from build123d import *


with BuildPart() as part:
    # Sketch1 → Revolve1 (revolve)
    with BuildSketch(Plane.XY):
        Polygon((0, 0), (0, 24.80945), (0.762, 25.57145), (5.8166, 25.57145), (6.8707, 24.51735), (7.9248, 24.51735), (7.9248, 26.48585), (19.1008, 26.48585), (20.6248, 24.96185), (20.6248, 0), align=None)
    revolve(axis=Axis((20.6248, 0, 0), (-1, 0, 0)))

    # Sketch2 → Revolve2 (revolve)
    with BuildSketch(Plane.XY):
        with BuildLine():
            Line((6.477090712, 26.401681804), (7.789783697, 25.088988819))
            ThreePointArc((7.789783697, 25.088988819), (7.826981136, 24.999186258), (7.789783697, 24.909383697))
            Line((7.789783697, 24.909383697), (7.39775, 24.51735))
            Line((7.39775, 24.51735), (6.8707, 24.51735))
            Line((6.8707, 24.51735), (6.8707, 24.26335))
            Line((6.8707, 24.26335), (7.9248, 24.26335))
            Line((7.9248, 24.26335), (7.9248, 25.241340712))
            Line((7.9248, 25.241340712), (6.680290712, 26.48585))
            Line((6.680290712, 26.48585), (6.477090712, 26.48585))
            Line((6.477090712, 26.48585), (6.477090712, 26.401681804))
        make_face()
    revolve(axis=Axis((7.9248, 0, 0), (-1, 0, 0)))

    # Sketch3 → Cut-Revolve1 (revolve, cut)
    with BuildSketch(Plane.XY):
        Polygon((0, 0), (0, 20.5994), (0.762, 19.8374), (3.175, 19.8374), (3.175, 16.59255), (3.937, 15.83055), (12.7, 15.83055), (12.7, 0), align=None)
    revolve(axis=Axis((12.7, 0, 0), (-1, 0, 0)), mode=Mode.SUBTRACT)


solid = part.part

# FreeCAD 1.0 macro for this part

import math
import FreeCAD as App
import Part
import Sketcher

V = App.Vector
Q = App.Units.Quantity

doc = App.newDocument("Part")
body = doc.addObject("PartDesign::Body", "Body")

# Sketch on XY plane
sketch1 = body.newObject("Sketcher::SketchObject", "Sketch")
sketch1.AttachmentSupport = (doc.getObject("XY_Plane"), [""])
sketch1.MapMode = "FlatFace"
sketch1.addGeometry([
    Part.LineSegment(V(0, 24.80945, 0), V(0, 0, 0)),  # 0
    Part.LineSegment(V(0, 0, 0), V(20.6248, 0, 0)),  # 1
    Part.LineSegment(V(20.6248, 0, 0), V(20.6248, 24.96185, 0)),  # 2
    Part.LineSegment(V(20.6248, 24.96185, 0), V(19.1008, 26.48585, 0)),  # 3
    Part.LineSegment(V(19.1008, 26.48585, 0), V(7.9248, 26.48585, 0)),  # 4
    Part.LineSegment(V(7.9248, 26.48585, 0), V(7.9248, 24.51735, 0)),  # 5
    Part.LineSegment(V(7.9248, 24.51735, 0), V(6.8707, 24.51735, 0)),  # 6
    Part.LineSegment(V(6.8707, 24.51735, 0), V(5.8166, 25.57145, 0)),  # 7
    Part.LineSegment(V(5.8166, 25.57145, 0), V(0.762, 25.57145, 0)),  # 8
    Part.LineSegment(V(0.762, 25.57145, 0), V(0, 24.80945, 0)),  # 9
], False)
sketch1.addConstraint([
    Sketcher.Constraint("Coincident", 0, 2, 1, 1),
    Sketcher.Constraint("Coincident", 1, 2, 2, 1),
    Sketcher.Constraint("Coincident", 2, 2, 3, 1),
    Sketcher.Constraint("Coincident", 3, 2, 4, 1),
    Sketcher.Constraint("Coincident", 4, 2, 5, 1),
    Sketcher.Constraint("Coincident", 5, 2, 6, 1),
    Sketcher.Constraint("Coincident", 6, 2, 7, 1),
    Sketcher.Constraint("Coincident", 7, 2, 8, 1),
    Sketcher.Constraint("Coincident", 8, 2, 9, 1),
    Sketcher.Constraint("Coincident", 9, 2, 0, 1),
    Sketcher.Constraint("Vertical", 0),
    Sketcher.Constraint("Horizontal", 1),
    Sketcher.Constraint("Vertical", 2),
    Sketcher.Constraint("Horizontal", 4),
    Sketcher.Constraint("Vertical", 5),
    Sketcher.Constraint("Horizontal", 6),
    Sketcher.Constraint("Horizontal", 8),
    Sketcher.Constraint("Coincident", 0, 2, -1, 1),
    Sketcher.Constraint("Parallel", 3, 7),
    Sketcher.Constraint("Perpendicular", 7, 9),
    Sketcher.Constraint("Angle", 3, Q("135 deg")),
    Sketcher.Constraint("DistanceX", 4, 2, 4, 1, Q("0.44 in")),
    Sketcher.Constraint("DistanceX", 4, 2, 2, 2, Q("0.5 in")),
    Sketcher.Constraint("DistanceX", 1, 1, 1, 2, Q("0.812 in")),
    Sketcher.Constraint("DistanceX", 8, 2, 8, 1, Q("0.199 in")),
    Sketcher.Constraint("DistanceX", -1, 1, 8, 2, Q("0.03 in")),
    Sketcher.Constraint("DistanceX", 6, 2, 6, 1, Q("0.0415 in")),
    Sketcher.Constraint("DistanceY", 5, 2, 5, 1, Q("0.0775 in")),
    Sketcher.Constraint("DistanceY", 0, 2, 0, 1, 24.80945),
])
revolution = body.newObject("PartDesign::Revolution", "Revolution")
revolution.Profile = sketch1
revolution.ReferenceAxis = (sketch1, ["H_Axis"])
revolution.Angle = 360

# Sketch on XY plane
sketch2 = body.newObject("Sketcher::SketchObject", "Sketch001")
sketch2.AttachmentSupport = (doc.getObject("XY_Plane"), [""])
sketch2.MapMode = "FlatFace"
sketch2.addGeometry([
    Part.LineSegment(V(6.477091, 26.401682, 0), V(7.789784, 25.088989, 0)),  # 0
    Part.ArcOfCircle(Part.Circle(V(7.699981, 24.999186, 0), V(0, 0, 1), 0.127), math.radians(-45), math.radians(45)),  # 1
    Part.LineSegment(V(7.789784, 24.909384, 0), V(7.39775, 24.51735, 0)),  # 2
    Part.LineSegment(V(7.39775, 24.51735, 0), V(6.8707, 24.51735, 0)),  # 3
    Part.LineSegment(V(6.8707, 24.51735, 0), V(6.8707, 24.26335, 0)),  # 4
    Part.LineSegment(V(6.8707, 24.26335, 0), V(7.9248, 24.26335, 0)),  # 5
    Part.LineSegment(V(7.9248, 24.26335, 0), V(7.9248, 25.241341, 0)),  # 6
    Part.LineSegment(V(7.9248, 25.241341, 0), V(6.680291, 26.48585, 0)),  # 7
    Part.LineSegment(V(6.680291, 26.48585, 0), V(6.477091, 26.48585, 0)),  # 8
    Part.LineSegment(V(6.477091, 26.48585, 0), V(6.477091, 26.401682, 0)),  # 9
], False)
sketch2.addConstraint([
    Sketcher.Constraint("Tangent", 0, 2, 1, 2),
    Sketcher.Constraint("Tangent", 1, 1, 2, 1),
    Sketcher.Constraint("Coincident", 2, 2, 3, 1),
    Sketcher.Constraint("Coincident", 3, 2, 4, 1),
    Sketcher.Constraint("Coincident", 4, 2, 5, 1),
    Sketcher.Constraint("Coincident", 5, 2, 6, 1),
    Sketcher.Constraint("Coincident", 6, 2, 7, 1),
    Sketcher.Constraint("Coincident", 7, 2, 8, 1),
    Sketcher.Constraint("Coincident", 8, 2, 9, 1),
    Sketcher.Constraint("Coincident", 9, 2, 0, 1),
    Sketcher.Constraint("Horizontal", 3),
    Sketcher.Constraint("Vertical", 4),
    Sketcher.Constraint("Horizontal", 5),
    Sketcher.Constraint("Vertical", 6),
    Sketcher.Constraint("Horizontal", 8),
    Sketcher.Constraint("Vertical", 9),
    Sketcher.Constraint("Perpendicular", 0, 2),
    Sketcher.Constraint("Perpendicular", 2, 7),
    Sketcher.Constraint("Vertical", 0, 2, 1, 1),
    Sketcher.Constraint("Radius", 1, Q("0.005 in")),
    Sketcher.Constraint("DistanceY", 4, 2, 4, 1, Q("0.01 in")),
    Sketcher.Constraint("DistanceX", 8, 2, 8, 1, Q("0.008 in")),
    Sketcher.Constraint("DistanceX", 5, 1, 5, 2, Q("0.0415 in")),
    Sketcher.Constraint("DistanceX", -1, 1, 5, 2, Q("0.312 in")),
    Sketcher.Constraint("DistanceY", 3, 2, 7, 2, Q("0.0775 in")),
    Sketcher.Constraint("Distance", 7, 1.760002),
    Sketcher.Constraint("DistanceX", 3, 2, 3, 1, 0.52705),
    Sketcher.Constraint("DistanceY", 9, 2, 9, 1, 0.084168),
    Sketcher.Constraint("DistanceY", -1, 1, 0, 2, 25.088989),
])
revolution2 = body.newObject("PartDesign::Revolution", "Revolution001")
revolution2.Profile = sketch2
revolution2.ReferenceAxis = (sketch2, ["H_Axis"])
revolution2.Angle = 360

# Sketch on XY plane
sketch3 = body.newObject("Sketcher::SketchObject", "Sketch002")
sketch3.AttachmentSupport = (doc.getObject("XY_Plane"), [""])
sketch3.MapMode = "FlatFace"
sketch3.addGeometry([
    Part.LineSegment(V(0, 20.5994, 0), V(0, 0, 0)),  # 0
    Part.LineSegment(V(0, 0, 0), V(12.7, 0, 0)),  # 1
    Part.LineSegment(V(12.7, 0, 0), V(12.7, 15.83055, 0)),  # 2
    Part.LineSegment(V(12.7, 15.83055, 0), V(3.937, 15.83055, 0)),  # 3
    Part.LineSegment(V(3.937, 15.83055, 0), V(3.175, 16.59255, 0)),  # 4
    Part.LineSegment(V(3.175, 16.59255, 0), V(3.175, 19.8374, 0)),  # 5
    Part.LineSegment(V(3.175, 19.8374, 0), V(0.762, 19.8374, 0)),  # 6
    Part.LineSegment(V(0.762, 19.8374, 0), V(0, 20.5994, 0)),  # 7
], False)
sketch3.addConstraint([
    Sketcher.Constraint("Coincident", 0, 2, 1, 1),
    Sketcher.Constraint("Coincident", 1, 2, 2, 1),
    Sketcher.Constraint("Coincident", 2, 2, 3, 1),
    Sketcher.Constraint("Coincident", 3, 2, 4, 1),
    Sketcher.Constraint("Coincident", 4, 2, 5, 1),
    Sketcher.Constraint("Coincident", 5, 2, 6, 1),
    Sketcher.Constraint("Coincident", 6, 2, 7, 1),
    Sketcher.Constraint("Coincident", 7, 2, 0, 1),
    Sketcher.Constraint("Vertical", 0),
    Sketcher.Constraint("Horizontal", 1),
    Sketcher.Constraint("Vertical", 2),
    Sketcher.Constraint("Horizontal", 3),
    Sketcher.Constraint("Vertical", 5),
    Sketcher.Constraint("Horizontal", 6),
    Sketcher.Constraint("Coincident", 0, 2, -1, 1),
    Sketcher.Constraint("Parallel", 4, 7),
    Sketcher.Constraint("Equal", 4, 7),
    Sketcher.Constraint("DistanceX", 1, 1, 1, 2, Q("0.5 in")),
    Sketcher.Constraint("Angle", 4, Q("135 deg")),
    Sketcher.Constraint("DistanceX", 3, 2, 3, 1, Q("0.345 in")),
    Sketcher.Constraint("DistanceX", 6, 2, 6, 1, Q("0.095 in")),
    Sketcher.Constraint("DistanceY", 0, 2, 0, 1, Q("0.811 in")),
    Sketcher.Constraint("DistanceY", 2, 1, 2, 2, 15.83055),
])
groove = body.newObject("PartDesign::Groove", "Groove")
groove.Profile = sketch3
groove.ReferenceAxis = (sketch3, ["H_Axis"])
groove.Angle = 360

doc.recompute()
